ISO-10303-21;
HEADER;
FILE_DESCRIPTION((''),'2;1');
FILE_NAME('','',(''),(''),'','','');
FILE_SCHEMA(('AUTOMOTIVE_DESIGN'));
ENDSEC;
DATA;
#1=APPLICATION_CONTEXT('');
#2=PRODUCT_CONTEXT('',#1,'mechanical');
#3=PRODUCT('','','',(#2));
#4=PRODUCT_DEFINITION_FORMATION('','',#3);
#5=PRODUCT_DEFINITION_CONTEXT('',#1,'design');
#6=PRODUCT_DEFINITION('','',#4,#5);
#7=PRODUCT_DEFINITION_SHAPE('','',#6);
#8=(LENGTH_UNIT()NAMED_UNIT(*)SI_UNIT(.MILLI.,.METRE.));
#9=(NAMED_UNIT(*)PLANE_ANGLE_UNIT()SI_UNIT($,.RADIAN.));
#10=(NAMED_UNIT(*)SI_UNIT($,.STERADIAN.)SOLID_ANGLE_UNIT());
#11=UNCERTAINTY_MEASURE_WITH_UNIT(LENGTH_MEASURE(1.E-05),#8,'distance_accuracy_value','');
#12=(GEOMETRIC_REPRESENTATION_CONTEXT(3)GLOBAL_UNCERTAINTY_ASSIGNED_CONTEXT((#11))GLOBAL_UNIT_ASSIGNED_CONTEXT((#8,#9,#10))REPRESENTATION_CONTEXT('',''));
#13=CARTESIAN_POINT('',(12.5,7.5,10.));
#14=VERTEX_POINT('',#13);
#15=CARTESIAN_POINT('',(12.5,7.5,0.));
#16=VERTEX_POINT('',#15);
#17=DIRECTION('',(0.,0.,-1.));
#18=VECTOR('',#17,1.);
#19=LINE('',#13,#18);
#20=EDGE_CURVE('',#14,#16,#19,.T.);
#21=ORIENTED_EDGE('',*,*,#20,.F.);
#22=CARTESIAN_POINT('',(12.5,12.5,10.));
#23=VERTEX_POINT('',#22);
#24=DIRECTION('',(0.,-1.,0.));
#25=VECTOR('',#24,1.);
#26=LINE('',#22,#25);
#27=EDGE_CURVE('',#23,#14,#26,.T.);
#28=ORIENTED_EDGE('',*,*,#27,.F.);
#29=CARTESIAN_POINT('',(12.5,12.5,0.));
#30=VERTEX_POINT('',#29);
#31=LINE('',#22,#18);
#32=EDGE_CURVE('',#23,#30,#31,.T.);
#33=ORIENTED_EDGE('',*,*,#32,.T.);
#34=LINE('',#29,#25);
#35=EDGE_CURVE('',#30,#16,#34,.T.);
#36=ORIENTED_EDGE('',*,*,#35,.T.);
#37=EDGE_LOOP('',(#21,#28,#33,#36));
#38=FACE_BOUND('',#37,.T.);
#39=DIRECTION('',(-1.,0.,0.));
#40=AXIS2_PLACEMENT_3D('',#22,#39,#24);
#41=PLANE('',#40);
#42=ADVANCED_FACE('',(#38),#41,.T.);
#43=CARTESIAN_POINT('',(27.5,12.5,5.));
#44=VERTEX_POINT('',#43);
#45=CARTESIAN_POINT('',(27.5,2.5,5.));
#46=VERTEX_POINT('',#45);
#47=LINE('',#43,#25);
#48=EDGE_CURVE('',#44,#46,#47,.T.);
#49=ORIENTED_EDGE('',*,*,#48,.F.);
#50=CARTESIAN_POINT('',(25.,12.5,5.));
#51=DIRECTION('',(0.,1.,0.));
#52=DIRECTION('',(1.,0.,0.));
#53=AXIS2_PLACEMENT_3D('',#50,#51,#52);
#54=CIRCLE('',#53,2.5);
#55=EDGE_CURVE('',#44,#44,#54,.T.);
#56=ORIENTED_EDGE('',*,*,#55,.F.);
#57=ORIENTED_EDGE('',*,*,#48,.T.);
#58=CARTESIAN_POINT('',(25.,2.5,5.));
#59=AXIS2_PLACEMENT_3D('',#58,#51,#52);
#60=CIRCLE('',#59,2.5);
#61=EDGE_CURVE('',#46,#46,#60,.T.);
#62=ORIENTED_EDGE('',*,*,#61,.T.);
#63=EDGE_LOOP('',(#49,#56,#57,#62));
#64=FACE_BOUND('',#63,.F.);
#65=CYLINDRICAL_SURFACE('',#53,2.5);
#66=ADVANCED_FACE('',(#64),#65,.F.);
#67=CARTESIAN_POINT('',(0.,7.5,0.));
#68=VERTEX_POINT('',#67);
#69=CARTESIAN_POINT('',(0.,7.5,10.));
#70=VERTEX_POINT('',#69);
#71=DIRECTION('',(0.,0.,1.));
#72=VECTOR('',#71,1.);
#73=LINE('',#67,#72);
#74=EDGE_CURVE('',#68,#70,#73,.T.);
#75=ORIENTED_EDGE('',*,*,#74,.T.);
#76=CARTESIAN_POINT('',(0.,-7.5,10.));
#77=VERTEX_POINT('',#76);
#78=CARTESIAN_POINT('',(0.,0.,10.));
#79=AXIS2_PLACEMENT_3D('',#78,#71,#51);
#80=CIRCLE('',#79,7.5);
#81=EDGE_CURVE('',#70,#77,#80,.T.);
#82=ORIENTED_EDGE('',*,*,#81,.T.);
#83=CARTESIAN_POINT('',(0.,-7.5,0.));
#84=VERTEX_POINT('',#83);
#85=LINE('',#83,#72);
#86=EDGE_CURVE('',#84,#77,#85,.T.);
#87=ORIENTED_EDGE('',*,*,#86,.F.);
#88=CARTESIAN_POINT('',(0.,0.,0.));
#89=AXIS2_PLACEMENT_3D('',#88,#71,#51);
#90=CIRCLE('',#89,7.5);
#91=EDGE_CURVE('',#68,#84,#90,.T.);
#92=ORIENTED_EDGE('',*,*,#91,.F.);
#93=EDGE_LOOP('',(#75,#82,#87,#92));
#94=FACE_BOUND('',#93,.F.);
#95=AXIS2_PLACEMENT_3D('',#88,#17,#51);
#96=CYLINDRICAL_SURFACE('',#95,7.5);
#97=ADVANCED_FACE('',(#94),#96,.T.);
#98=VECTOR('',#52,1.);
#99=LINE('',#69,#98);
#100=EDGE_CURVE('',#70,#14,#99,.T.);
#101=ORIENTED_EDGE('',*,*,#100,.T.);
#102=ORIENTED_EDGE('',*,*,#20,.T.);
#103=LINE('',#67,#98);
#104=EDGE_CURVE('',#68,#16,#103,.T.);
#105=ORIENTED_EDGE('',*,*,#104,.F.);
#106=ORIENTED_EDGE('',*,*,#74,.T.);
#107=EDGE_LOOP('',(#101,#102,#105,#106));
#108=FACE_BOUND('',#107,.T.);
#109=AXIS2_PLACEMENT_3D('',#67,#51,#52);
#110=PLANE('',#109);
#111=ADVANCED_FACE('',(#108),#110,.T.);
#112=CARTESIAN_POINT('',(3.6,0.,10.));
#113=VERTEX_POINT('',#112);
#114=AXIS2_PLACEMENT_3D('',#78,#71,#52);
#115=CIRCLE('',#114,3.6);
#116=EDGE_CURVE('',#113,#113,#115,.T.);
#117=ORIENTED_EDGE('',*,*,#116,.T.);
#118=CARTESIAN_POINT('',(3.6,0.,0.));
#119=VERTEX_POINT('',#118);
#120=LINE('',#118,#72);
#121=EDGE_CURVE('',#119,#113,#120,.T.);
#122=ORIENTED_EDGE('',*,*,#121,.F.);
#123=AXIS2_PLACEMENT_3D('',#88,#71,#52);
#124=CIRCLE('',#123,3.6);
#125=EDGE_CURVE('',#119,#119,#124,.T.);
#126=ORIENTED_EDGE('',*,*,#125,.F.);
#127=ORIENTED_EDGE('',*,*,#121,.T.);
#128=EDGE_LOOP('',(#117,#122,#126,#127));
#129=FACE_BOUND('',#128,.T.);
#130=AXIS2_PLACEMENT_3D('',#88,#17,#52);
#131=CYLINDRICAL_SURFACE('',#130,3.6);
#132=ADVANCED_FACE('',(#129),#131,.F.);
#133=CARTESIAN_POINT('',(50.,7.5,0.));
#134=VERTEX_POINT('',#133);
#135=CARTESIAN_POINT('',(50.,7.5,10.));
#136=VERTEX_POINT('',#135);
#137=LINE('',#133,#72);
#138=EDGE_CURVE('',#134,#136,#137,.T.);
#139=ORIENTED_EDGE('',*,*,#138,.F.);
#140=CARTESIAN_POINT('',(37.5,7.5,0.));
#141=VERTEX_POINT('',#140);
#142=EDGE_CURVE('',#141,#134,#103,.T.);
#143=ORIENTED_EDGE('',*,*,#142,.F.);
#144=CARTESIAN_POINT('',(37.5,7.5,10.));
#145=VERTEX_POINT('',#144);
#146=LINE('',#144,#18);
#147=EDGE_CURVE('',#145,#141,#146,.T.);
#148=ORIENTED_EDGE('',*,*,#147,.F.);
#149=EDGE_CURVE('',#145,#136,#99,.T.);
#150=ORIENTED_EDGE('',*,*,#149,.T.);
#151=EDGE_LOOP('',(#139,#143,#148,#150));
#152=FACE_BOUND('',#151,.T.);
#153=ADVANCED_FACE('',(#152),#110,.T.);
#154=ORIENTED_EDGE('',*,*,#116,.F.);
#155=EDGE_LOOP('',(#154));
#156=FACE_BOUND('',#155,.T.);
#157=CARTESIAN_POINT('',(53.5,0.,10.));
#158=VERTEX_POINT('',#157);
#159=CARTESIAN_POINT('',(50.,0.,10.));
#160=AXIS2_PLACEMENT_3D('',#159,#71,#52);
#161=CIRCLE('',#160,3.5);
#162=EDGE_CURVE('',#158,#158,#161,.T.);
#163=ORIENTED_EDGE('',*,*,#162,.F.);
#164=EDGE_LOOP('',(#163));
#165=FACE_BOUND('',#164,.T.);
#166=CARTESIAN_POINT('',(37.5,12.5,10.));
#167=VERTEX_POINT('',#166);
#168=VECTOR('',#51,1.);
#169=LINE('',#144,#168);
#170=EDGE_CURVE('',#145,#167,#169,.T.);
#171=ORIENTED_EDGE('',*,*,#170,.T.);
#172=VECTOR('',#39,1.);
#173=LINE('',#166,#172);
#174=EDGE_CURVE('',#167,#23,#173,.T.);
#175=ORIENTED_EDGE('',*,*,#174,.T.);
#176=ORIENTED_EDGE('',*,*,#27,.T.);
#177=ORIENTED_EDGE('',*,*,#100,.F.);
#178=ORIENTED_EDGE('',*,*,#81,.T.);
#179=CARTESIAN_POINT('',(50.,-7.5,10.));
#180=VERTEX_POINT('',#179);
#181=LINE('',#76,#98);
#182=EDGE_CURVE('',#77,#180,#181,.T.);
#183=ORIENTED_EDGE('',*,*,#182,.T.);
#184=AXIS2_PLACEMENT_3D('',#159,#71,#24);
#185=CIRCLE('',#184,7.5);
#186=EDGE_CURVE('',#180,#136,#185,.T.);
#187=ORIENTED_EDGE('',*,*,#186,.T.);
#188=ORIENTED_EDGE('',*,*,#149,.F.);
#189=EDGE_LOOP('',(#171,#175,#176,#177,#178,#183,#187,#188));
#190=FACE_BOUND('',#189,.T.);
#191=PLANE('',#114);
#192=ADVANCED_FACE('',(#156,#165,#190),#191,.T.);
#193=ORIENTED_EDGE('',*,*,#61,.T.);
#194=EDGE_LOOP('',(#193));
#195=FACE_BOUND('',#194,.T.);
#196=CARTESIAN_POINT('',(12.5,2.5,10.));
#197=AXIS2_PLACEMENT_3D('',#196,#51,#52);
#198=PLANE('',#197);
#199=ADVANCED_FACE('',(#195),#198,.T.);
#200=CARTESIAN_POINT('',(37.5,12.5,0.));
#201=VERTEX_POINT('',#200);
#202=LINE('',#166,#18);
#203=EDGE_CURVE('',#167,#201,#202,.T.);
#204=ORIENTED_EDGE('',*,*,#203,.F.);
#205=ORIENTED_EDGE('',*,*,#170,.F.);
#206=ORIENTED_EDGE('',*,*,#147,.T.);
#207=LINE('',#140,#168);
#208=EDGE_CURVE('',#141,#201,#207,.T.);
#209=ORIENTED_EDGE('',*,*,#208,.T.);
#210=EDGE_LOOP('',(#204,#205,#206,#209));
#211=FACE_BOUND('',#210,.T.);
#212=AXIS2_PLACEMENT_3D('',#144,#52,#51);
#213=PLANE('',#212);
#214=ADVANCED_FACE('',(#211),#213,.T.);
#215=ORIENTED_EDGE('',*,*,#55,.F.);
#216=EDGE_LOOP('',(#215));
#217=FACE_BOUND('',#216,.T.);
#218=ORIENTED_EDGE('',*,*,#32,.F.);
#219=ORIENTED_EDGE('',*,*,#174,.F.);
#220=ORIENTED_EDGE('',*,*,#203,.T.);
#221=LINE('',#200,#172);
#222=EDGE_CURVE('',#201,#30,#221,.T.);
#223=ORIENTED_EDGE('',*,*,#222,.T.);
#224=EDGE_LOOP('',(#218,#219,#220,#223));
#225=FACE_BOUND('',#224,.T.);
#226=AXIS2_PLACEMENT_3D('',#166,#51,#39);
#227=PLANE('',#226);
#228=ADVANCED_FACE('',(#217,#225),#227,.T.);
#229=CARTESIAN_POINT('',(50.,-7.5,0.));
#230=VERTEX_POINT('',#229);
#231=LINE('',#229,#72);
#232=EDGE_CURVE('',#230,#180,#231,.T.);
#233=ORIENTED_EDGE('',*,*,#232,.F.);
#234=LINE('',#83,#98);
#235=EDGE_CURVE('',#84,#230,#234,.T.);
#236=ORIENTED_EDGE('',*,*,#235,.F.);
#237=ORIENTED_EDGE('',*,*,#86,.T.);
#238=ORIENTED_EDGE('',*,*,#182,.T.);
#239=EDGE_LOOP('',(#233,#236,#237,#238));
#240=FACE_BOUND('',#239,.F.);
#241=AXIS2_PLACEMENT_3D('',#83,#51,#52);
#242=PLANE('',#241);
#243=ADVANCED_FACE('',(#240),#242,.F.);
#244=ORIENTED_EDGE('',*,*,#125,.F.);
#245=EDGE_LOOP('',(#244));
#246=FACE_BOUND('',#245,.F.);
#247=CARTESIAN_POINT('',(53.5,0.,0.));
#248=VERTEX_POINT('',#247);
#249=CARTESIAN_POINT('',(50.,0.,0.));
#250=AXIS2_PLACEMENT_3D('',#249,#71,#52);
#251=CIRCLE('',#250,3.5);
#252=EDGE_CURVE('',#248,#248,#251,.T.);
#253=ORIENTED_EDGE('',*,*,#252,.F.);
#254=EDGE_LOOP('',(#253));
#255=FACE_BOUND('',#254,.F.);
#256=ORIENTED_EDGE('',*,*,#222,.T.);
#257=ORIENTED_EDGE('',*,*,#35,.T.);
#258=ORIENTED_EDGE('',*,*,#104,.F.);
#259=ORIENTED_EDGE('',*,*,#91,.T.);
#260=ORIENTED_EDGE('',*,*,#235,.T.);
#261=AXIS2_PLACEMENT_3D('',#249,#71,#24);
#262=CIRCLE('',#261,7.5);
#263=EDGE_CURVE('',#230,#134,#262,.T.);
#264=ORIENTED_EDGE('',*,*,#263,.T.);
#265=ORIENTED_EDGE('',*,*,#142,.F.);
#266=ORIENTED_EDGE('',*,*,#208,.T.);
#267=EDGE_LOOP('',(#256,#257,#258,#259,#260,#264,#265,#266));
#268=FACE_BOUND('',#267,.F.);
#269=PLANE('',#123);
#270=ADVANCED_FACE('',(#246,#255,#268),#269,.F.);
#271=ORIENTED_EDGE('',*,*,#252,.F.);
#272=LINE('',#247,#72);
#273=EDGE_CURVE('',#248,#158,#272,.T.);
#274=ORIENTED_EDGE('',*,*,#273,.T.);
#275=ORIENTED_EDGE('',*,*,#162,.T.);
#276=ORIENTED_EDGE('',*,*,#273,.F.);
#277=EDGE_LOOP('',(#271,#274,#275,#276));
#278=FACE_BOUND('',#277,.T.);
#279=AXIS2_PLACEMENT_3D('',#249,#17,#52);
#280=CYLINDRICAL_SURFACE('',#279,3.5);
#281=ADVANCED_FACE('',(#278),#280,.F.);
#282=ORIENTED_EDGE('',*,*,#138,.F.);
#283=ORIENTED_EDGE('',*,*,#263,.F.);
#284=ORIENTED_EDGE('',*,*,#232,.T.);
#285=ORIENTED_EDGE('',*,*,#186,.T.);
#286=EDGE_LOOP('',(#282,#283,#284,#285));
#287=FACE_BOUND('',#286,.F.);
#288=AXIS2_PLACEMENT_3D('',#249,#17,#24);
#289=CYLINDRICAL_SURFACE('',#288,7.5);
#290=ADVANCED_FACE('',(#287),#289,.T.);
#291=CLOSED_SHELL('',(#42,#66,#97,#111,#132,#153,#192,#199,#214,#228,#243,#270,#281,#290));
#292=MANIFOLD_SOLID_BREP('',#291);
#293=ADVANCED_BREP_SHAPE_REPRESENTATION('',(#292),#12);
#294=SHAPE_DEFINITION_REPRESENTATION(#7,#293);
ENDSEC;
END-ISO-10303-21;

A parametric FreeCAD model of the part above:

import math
import FreeCAD as App
import Part
import Sketcher
from FreeCAD import Vector
Q = App.Units.Quantity


def add_polygon(sketch, points):
    """Adds a closed chain of lines whose ends are joined by coincident constraints."""
    first, n = sketch.GeometryCount, len(points)
    for a, b in zip(points, points[1:] + points[:1]):
        sketch.addGeometry(Part.LineSegment(App.Vector(*a, 0), App.Vector(*b, 0)), False)
    for i in range(n):
        sketch.addConstraint(Sketcher.Constraint("Coincident", first + i, 2, first + (i + 1) % n, 1))

doc = App.newDocument("Part")
body = doc.addObject("PartDesign::Body", "Body")

# Sketch on XY plane
sketch1 = body.newObject("Sketcher::SketchObject", "Sketch")
sketch1.AttachmentSupport = (doc.getObject("XY_Plane"), [""])
sketch1.MapMode = "FlatFace"
sketch1.addGeometry([
    Part.LineSegment(Vector(50, 7.5, 0), Vector(0, 7.5, 0)),  # 0
    Part.ArcOfCircle(Part.Circle(Vector(0, 0, 0), Vector(0, 0, 1), 7.5), math.radians(90), math.radians(270)),  # 1
    Part.LineSegment(Vector(0, -7.5, 0), Vector(50, -7.5, 0)),  # 2
    Part.ArcOfCircle(Part.Circle(Vector(50, 0, 0), Vector(0, 0, 1), 7.5), math.radians(-90), math.radians(90)),  # 3
    Part.Circle(Vector(0, 0, 0), Vector(0, 0, 1), 3.6),  # 4
    Part.Circle(Vector(50, 0, 0), Vector(0, 0, 1), 3.5),  # 5
], False)
sketch1.addConstraint([
    Sketcher.Constraint("Tangent", 0, 2, 1, 1),
    Sketcher.Constraint("Tangent", 1, 2, 2, 1),
    Sketcher.Constraint("Tangent", 2, 2, 3, 1),
    Sketcher.Constraint("Tangent", 3, 2, 0, 1),
    Sketcher.Constraint("Horizontal", 0),
    Sketcher.Constraint("Horizontal", 2),
    Sketcher.Constraint("Coincident", 1, 3, -1, 1),
    Sketcher.Constraint("Coincident", 4, 3, -1, 1),
    Sketcher.Constraint("Coincident", 5, 3, 3, 3),
    Sketcher.Constraint("Diameter", 5, Q("7 mm")),
    Sketcher.Constraint("Diameter", 4, Q("7.2 mm")),
    Sketcher.Constraint("Radius", 1, Q("7.5 mm")),
    Sketcher.Constraint("DistanceX", 0, 2, 0, 1, Q("50 mm")),
])
pad1 = body.newObject("PartDesign::Pad", "Pad")
pad1.Profile = sketch1
pad1.Length = 10

# Sketch on XY plane
sketch2 = body.newObject("Sketcher::SketchObject", "Sketch001")
sketch2.AttachmentSupport = (doc.getObject("XY_Plane"), [""])
sketch2.MapMode = "FlatFace"
sketch2.AttachmentOffset = App.Placement(Vector(0, 0, 10), App.Rotation())
add_polygon(sketch2, [(12, 8), (38, 8), (38, 12), (12, 12)])  # lines 0-3
sketch2.addConstraint([
    Sketcher.Constraint("Horizontal", 0),
    Sketcher.Constraint("Vertical", 1),
    Sketcher.Constraint("Horizontal", 2),
    Sketcher.Constraint("Vertical", 3),
    Sketcher.Constraint("DistanceX", 0, 1, 0, 2, Q("25 mm")),
    Sketcher.Constraint("DistanceY", 1, 1, 1, 2, Q("5 mm")),
    Sketcher.Constraint("DistanceX", -1, 1, 0, 2, Q("37.5 mm")),
    Sketcher.Constraint("DistanceY", -1, 1, 0, 2, Q("7.5 mm")),
])
pad2 = body.newObject("PartDesign::Pad", "Pad001")
pad2.Profile = sketch2
pad2.Length = 10
pad2.Reversed = True

# Sketch on XZ plane
sketch3 = body.newObject("Sketcher::SketchObject", "Sketch002")
sketch3.AttachmentSupport = (doc.getObject("XZ_Plane"), [""])
sketch3.MapMode = "FlatFace"
sketch3.AttachmentOffset = App.Placement(Vector(0, 0, -12.5), App.Rotation())
sketch3.addGeometry(Part.Circle(Vector(25, 5, 0), Vector(0, 0, 1), 2.5), False)
sketch3.addConstraint([
    Sketcher.Constraint("Diameter", 0, Q("5 mm")),
    Sketcher.Constraint("DistanceY", -1, 1, 0, 3, Q("5 mm")),
    Sketcher.Constraint("DistanceX", -1, 1, 0, 3, Q("25 mm")),
])
pocket1 = body.newObject("PartDesign::Pocket", "Pocket")
pocket1.Profile = sketch3
pocket1.Length = 10
pocket1.Reversed = True

doc.recompute()
